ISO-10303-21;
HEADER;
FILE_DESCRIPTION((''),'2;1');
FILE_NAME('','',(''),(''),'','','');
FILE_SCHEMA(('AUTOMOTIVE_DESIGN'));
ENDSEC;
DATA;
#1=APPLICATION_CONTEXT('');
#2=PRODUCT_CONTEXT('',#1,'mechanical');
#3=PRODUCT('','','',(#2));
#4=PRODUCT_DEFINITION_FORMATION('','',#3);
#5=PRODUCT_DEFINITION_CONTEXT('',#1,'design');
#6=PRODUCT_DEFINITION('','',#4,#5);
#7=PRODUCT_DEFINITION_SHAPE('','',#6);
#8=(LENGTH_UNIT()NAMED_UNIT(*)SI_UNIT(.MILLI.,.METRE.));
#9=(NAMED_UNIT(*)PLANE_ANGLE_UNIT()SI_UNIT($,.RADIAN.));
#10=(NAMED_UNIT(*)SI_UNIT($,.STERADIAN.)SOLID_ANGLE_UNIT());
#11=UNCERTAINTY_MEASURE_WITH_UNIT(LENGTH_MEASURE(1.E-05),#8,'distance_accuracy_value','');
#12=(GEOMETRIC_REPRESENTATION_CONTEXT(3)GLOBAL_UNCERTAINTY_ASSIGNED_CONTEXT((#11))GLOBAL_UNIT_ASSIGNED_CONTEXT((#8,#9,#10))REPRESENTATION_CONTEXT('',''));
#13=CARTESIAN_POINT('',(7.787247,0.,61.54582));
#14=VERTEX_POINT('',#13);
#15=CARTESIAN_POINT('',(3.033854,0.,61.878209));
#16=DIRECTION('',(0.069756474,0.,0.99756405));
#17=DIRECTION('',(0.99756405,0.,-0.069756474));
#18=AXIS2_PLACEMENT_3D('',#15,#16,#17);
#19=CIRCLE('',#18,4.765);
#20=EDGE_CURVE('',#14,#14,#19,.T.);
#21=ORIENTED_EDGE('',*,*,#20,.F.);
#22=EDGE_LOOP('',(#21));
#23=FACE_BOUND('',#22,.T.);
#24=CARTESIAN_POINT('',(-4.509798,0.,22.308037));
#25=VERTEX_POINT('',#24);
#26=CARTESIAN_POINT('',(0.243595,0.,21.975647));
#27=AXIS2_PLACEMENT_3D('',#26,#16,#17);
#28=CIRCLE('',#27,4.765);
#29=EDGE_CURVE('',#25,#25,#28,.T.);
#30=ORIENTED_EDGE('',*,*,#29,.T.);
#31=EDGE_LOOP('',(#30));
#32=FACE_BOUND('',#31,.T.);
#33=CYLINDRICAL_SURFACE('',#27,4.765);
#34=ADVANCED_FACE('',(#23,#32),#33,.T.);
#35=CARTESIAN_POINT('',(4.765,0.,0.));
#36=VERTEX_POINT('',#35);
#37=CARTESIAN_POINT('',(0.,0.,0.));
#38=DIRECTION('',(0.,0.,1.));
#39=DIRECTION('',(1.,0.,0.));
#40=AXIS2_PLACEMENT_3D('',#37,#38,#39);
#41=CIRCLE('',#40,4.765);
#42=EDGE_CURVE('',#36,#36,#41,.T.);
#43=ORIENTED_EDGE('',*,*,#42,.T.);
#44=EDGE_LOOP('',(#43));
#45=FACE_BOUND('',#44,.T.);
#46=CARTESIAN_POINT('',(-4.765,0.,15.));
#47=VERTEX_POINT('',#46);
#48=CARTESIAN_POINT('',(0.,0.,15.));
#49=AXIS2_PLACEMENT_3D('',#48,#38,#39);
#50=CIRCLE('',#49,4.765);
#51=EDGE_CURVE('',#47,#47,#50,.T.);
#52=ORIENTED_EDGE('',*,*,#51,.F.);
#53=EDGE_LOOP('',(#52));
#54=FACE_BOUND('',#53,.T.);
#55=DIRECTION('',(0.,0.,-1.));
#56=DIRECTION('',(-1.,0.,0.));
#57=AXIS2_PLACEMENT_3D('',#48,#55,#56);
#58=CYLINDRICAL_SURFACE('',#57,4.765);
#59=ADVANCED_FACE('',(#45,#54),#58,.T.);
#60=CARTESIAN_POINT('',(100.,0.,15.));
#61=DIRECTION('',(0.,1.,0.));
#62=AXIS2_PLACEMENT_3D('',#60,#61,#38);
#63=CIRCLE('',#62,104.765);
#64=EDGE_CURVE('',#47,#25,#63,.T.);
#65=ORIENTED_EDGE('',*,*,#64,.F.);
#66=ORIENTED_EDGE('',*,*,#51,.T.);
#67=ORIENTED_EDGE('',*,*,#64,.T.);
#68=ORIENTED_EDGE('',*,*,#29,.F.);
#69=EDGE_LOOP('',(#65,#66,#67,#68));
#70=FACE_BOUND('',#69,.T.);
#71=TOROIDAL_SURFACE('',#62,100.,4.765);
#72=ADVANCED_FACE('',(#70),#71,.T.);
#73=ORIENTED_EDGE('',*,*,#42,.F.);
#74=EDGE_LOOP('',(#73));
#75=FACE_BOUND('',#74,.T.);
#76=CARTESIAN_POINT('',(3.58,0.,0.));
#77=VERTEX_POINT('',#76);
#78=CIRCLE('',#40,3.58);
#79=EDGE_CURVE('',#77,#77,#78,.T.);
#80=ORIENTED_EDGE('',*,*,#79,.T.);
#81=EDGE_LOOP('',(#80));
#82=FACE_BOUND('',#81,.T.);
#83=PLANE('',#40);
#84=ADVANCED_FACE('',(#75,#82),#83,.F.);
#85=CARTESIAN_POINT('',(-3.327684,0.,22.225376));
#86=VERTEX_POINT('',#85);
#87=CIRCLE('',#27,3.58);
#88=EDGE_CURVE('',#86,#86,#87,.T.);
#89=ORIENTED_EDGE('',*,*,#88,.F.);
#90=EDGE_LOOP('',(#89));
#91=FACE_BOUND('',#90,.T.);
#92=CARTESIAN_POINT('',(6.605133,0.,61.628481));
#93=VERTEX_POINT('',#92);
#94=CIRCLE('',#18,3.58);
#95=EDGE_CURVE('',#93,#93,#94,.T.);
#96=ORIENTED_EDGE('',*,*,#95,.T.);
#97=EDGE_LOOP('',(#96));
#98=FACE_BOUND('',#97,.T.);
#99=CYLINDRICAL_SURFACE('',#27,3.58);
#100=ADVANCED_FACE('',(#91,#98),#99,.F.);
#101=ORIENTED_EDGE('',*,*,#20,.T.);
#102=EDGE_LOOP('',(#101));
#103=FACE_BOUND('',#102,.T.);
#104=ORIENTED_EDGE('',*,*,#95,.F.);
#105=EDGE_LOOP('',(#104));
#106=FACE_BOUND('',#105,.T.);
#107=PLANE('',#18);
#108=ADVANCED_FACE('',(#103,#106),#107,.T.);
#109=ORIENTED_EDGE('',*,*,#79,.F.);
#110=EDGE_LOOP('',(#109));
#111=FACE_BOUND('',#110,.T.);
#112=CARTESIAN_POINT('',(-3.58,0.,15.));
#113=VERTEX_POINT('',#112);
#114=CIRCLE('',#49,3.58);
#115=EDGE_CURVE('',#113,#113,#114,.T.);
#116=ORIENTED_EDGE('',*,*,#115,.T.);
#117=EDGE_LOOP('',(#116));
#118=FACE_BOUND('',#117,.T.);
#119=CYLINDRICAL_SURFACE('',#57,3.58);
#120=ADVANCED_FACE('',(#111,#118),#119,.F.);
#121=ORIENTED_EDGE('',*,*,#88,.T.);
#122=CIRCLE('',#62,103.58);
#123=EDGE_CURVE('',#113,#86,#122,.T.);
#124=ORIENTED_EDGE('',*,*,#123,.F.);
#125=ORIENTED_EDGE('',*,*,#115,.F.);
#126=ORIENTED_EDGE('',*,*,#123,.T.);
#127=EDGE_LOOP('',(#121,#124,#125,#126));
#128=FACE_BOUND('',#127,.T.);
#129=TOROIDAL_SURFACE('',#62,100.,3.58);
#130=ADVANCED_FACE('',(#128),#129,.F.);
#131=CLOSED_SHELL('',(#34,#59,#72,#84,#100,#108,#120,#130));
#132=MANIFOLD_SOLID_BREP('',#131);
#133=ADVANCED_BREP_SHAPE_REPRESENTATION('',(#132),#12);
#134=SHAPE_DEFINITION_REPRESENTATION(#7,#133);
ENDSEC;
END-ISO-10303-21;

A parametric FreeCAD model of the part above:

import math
import FreeCAD as App
import Part
import Sketcher
Q = App.Units.Quantity

doc = App.newDocument("Part")
body = doc.addObject("PartDesign::Body", "Body")

# Sketch on XY plane
sketch1 = body.newObject("Sketcher::SketchObject", "Sketch")
sketch1.AttachmentSupport = (doc.getObject("XY_Plane"), [""])
sketch1.MapMode = "FlatFace"
sketch1.addGeometry(Part.Circle(App.Vector(0, 0, 0), App.Vector(0, 0, 1), 4.8), False)
sketch1.addGeometry(Part.Circle(App.Vector(0, 0, 0), App.Vector(0, 0, 1), 3.6), False)
sketch1.addConstraint(Sketcher.Constraint("Coincident", 0, 3, -1, 1))
sketch1.addConstraint(Sketcher.Constraint("Coincident", 1, 3, -1, 1))
sketch1.addConstraint(Sketcher.Constraint("Diameter", 0, 9.53))
sketch1.addConstraint(Sketcher.Constraint("Diameter", 1, 7.16))

# Sketch on XZ plane
sketch2 = body.newObject("Sketcher::SketchObject", "Sketch001")
sketch2.AttachmentSupport = (doc.getObject("XZ_Plane"), [""])
sketch2.MapMode = "FlatFace"
sketch2.addGeometry(Part.LineSegment(App.Vector(0, 0, 0), App.Vector(0, 15, 0)), False)
sketch2.addGeometry(Part.ArcOfCircle(Part.Circle(App.Vector(100, 15, 0), App.Vector(0, 0, 1), 100), math.radians(176), math.radians(180)), False)
sketch2.addGeometry(Part.LineSegment(App.Vector(0, 22, 0), App.Vector(3, 62, 0)), False)
sketch2.addConstraint(Sketcher.Constraint("Tangent", 0, 2, 1, 2))
sketch2.addConstraint(Sketcher.Constraint("Tangent", 1, 1, 2, 1))
sketch2.addConstraint(Sketcher.Constraint("Vertical", 0))
sketch2.addConstraint(Sketcher.Constraint("Coincident", 0, 1, -1, 1))
sketch2.addConstraint(Sketcher.Constraint("Radius", 1, 100.0))
sketch2.addConstraint(Sketcher.Constraint("DistanceY", 0, 1, 0, 2, 15.0))
sketch2.addConstraint(Sketcher.Constraint("Angle", 2, Q("86 deg")))
sketch2.addConstraint(Sketcher.Constraint("Distance", 2, 40.0))
doc.recompute()

additivepipe = body.newObject("PartDesign::AdditivePipe", "AdditivePipe")
additivepipe.Profile = sketch1
additivepipe.Spine = (sketch2, ["Edge1", "Edge2", "Edge3"])

doc.recompute()
